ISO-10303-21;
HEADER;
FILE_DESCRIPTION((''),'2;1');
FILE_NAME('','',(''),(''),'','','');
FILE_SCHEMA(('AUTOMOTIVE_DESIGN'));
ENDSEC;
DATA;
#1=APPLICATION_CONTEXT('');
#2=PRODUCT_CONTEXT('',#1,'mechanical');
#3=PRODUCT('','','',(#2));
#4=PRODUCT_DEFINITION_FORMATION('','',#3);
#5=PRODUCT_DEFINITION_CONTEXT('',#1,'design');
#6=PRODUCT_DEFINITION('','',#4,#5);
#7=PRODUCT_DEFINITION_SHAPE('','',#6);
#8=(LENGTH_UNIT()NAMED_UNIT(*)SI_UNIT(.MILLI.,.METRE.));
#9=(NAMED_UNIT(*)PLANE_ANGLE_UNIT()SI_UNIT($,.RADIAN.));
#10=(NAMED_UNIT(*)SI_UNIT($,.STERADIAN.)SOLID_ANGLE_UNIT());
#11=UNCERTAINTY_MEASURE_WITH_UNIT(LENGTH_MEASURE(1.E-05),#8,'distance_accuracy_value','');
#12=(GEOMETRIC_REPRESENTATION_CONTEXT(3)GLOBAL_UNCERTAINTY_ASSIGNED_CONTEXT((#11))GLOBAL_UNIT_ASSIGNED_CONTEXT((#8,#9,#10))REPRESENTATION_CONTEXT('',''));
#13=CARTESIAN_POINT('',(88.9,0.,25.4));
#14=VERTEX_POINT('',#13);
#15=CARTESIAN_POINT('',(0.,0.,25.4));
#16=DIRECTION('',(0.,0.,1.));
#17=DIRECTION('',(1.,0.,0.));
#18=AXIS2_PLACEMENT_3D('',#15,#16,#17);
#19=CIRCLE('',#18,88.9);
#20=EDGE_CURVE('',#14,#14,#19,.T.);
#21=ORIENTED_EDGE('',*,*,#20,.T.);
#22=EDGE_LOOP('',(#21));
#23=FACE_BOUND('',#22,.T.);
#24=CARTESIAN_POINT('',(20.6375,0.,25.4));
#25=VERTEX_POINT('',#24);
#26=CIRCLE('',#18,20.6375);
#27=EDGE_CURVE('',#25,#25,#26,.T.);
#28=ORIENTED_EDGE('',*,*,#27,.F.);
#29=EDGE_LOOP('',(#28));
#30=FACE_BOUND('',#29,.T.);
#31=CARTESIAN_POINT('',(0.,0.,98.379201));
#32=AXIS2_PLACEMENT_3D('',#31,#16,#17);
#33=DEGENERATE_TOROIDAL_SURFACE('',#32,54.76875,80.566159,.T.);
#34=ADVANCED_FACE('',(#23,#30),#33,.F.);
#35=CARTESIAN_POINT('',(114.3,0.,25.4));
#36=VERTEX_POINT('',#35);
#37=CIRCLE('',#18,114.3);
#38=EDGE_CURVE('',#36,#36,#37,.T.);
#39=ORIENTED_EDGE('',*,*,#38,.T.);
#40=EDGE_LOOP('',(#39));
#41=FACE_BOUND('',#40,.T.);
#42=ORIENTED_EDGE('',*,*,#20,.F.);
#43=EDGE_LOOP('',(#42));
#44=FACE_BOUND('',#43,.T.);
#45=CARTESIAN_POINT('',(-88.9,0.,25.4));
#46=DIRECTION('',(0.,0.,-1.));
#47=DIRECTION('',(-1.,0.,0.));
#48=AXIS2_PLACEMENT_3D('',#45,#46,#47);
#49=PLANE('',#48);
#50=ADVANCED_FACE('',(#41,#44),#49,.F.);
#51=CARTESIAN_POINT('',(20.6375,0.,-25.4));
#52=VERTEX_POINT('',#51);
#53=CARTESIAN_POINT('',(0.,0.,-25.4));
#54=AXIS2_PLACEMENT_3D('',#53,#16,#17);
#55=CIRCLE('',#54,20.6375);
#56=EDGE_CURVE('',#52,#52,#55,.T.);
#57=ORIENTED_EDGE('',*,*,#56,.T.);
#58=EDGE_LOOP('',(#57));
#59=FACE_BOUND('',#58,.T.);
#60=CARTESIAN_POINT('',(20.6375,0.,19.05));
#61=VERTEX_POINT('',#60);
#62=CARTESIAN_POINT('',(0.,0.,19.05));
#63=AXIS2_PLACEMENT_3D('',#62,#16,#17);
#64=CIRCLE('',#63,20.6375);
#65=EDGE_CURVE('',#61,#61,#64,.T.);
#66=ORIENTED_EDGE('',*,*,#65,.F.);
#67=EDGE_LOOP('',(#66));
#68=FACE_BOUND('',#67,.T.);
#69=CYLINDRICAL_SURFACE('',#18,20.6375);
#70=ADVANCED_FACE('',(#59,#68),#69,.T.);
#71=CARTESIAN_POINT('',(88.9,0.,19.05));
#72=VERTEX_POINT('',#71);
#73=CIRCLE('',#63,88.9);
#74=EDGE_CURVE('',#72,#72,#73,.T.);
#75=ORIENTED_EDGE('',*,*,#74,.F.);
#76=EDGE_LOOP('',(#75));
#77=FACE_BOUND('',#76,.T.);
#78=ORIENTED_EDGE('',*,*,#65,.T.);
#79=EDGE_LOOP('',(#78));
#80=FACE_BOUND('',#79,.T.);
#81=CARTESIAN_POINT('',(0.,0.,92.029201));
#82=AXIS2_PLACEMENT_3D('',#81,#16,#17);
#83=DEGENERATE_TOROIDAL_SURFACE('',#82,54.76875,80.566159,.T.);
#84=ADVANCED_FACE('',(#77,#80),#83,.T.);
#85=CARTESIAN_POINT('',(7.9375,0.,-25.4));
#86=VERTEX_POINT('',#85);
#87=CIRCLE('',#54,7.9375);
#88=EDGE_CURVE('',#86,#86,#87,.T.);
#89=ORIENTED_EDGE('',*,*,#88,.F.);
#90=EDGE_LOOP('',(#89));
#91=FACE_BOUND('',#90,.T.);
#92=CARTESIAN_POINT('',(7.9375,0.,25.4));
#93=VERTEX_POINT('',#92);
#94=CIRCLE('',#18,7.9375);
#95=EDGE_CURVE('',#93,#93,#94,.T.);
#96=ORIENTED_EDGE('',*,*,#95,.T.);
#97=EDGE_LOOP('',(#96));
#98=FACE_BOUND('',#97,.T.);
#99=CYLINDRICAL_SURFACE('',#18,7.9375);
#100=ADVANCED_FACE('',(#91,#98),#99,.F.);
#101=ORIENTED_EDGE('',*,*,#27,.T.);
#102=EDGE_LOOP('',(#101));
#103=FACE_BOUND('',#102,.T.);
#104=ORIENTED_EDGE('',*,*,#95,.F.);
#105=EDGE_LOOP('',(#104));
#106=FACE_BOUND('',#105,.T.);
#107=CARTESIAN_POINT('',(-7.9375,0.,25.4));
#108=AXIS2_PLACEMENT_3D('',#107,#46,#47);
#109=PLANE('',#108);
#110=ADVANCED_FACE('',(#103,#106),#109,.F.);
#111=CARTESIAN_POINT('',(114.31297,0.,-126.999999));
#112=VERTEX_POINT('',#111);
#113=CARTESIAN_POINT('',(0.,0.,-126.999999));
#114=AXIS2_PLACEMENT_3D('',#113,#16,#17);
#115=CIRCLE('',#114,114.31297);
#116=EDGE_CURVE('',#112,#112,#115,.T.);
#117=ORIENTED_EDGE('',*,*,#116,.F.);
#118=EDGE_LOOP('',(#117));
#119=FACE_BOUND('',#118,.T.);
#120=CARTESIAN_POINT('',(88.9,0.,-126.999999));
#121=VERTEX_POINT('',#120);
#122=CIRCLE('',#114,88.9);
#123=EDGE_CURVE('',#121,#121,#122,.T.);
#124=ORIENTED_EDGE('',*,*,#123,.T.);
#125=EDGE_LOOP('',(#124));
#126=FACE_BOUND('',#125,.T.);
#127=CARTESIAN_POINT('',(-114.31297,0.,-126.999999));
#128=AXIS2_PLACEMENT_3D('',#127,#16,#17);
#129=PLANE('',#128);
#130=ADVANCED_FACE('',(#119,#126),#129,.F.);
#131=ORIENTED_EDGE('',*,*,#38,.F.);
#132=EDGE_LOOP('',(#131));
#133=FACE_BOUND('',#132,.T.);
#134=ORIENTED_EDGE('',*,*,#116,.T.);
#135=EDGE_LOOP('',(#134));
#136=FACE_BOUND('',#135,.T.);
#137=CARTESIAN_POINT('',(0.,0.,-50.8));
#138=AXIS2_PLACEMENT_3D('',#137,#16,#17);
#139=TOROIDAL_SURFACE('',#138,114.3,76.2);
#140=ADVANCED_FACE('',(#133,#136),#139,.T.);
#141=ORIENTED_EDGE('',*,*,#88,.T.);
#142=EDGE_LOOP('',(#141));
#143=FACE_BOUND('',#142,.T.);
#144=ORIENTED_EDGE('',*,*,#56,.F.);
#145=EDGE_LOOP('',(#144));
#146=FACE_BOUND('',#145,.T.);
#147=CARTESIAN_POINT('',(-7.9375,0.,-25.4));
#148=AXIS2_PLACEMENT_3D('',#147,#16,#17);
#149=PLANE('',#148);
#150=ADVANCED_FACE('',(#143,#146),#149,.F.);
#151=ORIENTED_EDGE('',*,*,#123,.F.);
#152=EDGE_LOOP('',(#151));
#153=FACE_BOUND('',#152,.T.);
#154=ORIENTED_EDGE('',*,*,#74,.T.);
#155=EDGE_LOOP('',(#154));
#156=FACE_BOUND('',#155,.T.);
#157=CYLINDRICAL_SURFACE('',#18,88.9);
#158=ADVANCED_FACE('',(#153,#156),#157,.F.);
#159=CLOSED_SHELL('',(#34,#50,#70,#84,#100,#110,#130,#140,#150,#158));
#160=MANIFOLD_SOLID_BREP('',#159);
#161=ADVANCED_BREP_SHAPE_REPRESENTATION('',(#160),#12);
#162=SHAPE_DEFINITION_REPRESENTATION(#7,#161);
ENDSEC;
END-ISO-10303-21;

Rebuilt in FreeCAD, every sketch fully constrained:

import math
import FreeCAD as App
import Part
import Sketcher
Q = App.Units.Quantity

doc = App.newDocument("Part")
body = doc.addObject("PartDesign::Body", "Body")

# Sketch on XZ plane
sketch1 = doc.addObject("Sketcher::SketchObject", "Sketch")
body.addObject(sketch1)
sketch1.AttachmentSupport = (doc.XZ_Plane, [""])
sketch1.MapMode = "FlatFace"
sketch1.addGeometry([
    Part.LineSegment(App.Vector(-8, 25, 0), App.Vector(-8, -25, 0)),  # 0
    Part.LineSegment(App.Vector(-8, -25, 0), App.Vector(-21, -25, 0)),  # 1
    Part.LineSegment(App.Vector(-21, -25, 0), App.Vector(-21, 19, 0)),  # 2
    Part.ArcOfCircle(Part.Circle(App.Vector(-55, 92, 0), App.Vector(0, 0, 1), 81), math.radians(-115), math.radians(-65)),  # 3
    Part.LineSegment(App.Vector(-89, 19, 0), App.Vector(-89, -127, 0)),  # 4
    Part.LineSegment(App.Vector(-89, -127, 0), App.Vector(-114, -127, 0)),  # 5
    Part.ArcOfCircle(Part.Circle(App.Vector(-114, -51, 0), App.Vector(0, 0, 1), 76), math.radians(90), math.radians(270)),  # 6
    Part.LineSegment(App.Vector(-114, 25, 0), App.Vector(-89, 25, 0)),  # 7
    Part.ArcOfCircle(Part.Circle(App.Vector(-55, 98, 0), App.Vector(0, 0, 1), 81), math.radians(-115), math.radians(-65)),  # 8
    Part.LineSegment(App.Vector(-21, 25, 0), App.Vector(-8, 25, 0)),  # 9
], False)
sketch1.addConstraint([
    Sketcher.Constraint("Coincident", 0, 2, 1, 1),
    Sketcher.Constraint("Coincident", 1, 2, 2, 1),
    Sketcher.Constraint("Coincident", 2, 2, 3, 2),
    Sketcher.Constraint("Coincident", 3, 1, 4, 1),
    Sketcher.Constraint("Coincident", 4, 2, 5, 1),
    Sketcher.Constraint("Coincident", 5, 2, 6, 2),
    Sketcher.Constraint("Tangent", 6, 1, 7, 1),
    Sketcher.Constraint("Coincident", 7, 2, 8, 1),
    Sketcher.Constraint("Coincident", 8, 2, 9, 1),
    Sketcher.Constraint("Coincident", 9, 2, 0, 1),
    Sketcher.Constraint("Vertical", 0),
    Sketcher.Constraint("Horizontal", 1),
    Sketcher.Constraint("Vertical", 2),
    Sketcher.Constraint("Vertical", 4),
    Sketcher.Constraint("Horizontal", 5),
    Sketcher.Constraint("Horizontal", 7),
    Sketcher.Constraint("Horizontal", 9),
    Sketcher.Constraint("Equal", 3, 8),
    Sketcher.Constraint("Symmetric", 1, 2, 8, 2, -1),
    Sketcher.Constraint("Horizontal", 2, 2, 3, 1),
    Sketcher.Constraint("Horizontal", 7, 2, 8, 2),
    Sketcher.Constraint("Vertical", 3, 3, 8, 3),
    Sketcher.Constraint("Radius", 6, Q("3 in")),
    Sketcher.Constraint("DistanceX", 7, 1, 7, 2, Q("1 in")),
    Sketcher.Constraint("DistanceY", 0, 2, 0, 1, Q("2 in")),
    Sketcher.Constraint("DistanceX", 1, 2, 1, 1, Q("0.5 in")),
    Sketcher.Constraint("DistanceY", 2, 1, 2, 2, Q("1.75 in")),
    Sketcher.Constraint("DistanceX", 6, 3, -1, 1, Q("4.5 in")),
    Sketcher.Constraint("DistanceX", 3, 3, -1, 1, Q("2.15625 in")),
    Sketcher.Constraint("Radius", 3, 80.566159),
    Sketcher.Constraint("DistanceX", 5, 2, 5, 1, 25.41297),
])
revolution = doc.addObject("PartDesign::Revolution", "Revolution")
body.addObject(revolution)
revolution.Profile = sketch1
revolution.ReferenceAxis = (sketch1, ["V_Axis"])
revolution.Angle = 360

doc.recompute()
